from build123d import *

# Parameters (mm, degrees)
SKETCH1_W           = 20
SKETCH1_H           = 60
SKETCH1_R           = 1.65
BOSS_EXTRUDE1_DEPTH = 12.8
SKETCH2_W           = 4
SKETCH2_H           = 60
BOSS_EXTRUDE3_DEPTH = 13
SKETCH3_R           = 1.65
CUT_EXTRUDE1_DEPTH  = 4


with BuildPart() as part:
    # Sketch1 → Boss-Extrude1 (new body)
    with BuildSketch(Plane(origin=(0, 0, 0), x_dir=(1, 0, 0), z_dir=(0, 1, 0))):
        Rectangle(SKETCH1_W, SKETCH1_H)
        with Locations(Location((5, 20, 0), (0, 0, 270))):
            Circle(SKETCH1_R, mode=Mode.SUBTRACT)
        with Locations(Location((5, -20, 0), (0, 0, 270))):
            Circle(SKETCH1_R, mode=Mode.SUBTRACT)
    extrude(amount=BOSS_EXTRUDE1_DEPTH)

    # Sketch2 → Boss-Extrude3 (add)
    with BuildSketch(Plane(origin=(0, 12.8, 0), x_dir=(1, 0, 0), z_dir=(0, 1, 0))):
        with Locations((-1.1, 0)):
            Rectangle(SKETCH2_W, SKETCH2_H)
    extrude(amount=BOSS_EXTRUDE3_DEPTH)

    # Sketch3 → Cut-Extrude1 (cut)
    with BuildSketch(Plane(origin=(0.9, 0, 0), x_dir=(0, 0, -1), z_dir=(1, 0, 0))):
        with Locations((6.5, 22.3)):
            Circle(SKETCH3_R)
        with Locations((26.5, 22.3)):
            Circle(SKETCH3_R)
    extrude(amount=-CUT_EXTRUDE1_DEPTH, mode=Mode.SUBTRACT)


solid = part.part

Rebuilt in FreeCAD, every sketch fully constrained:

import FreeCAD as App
import Part
import Sketcher
Q = App.Units.Quantity

doc = App.newDocument("Part")
params = doc.addObject("Spreadsheet::Sheet", "Params")
for row, (alias, value) in enumerate([
    ("sketch1_diameter", "3.3 mm"),
    ("sketch1_width", "20 mm"),
    ("sketch1_height", "60 mm"),
    ("pad1_length", "12.8 mm"),
    ("sketch2_width", "4 mm"),
    ("sketch2_height", "60 mm"),
    ("pad2_length", "13 mm"),
    ("sketch3_diameter", "3.3 mm"),
    ("pocket1_length", "4 mm"),
], start=1):
    params.set(f"A{row}", alias)
    params.set(f"B{row}", "=" + value)
    params.setAlias(f"B{row}", alias)

body = doc.addObject("PartDesign::Body", "Body")

sketch1 = doc.addObject("Sketcher::SketchObject", "Sketch")
body.addObject(sketch1)
sketch1.AttachmentSupport = (doc.XZ_Plane, [""])
sketch1.MapMode = "FlatFace"
sketch1.addGeometry([
    Part.LineSegment(App.Vector(-10, -30, 0), App.Vector(-10, 30, 0)),
    Part.LineSegment(App.Vector(-10, 30, 0), App.Vector(10, 30, 0)),
    Part.LineSegment(App.Vector(10, 30, 0), App.Vector(10, -30, 0)),
    Part.LineSegment(App.Vector(10, -30, 0), App.Vector(-10, -30, 0)),
    Part.Circle(App.Vector(5, 20, 0), App.Vector(0, 0, 1), 1.65),
    Part.Circle(App.Vector(5, -20, 0), App.Vector(0, 0, 1), 1.65),
], False)
sketch1.addConstraint([
    Sketcher.Constraint("Coincident", 0, 2, 1, 1),
    Sketcher.Constraint("Coincident", 1, 2, 2, 1),
    Sketcher.Constraint("Coincident", 2, 2, 3, 1),
    Sketcher.Constraint("Coincident", 3, 2, 0, 1),
    Sketcher.Constraint("Vertical", 0),
    Sketcher.Constraint("Horizontal", 1),
    Sketcher.Constraint("Vertical", 2),
    Sketcher.Constraint("Horizontal", 3),
    Sketcher.Constraint("Equal", 4, 5),
    Sketcher.Constraint("Symmetric", 0, 2, 2, 2, -1, 1),
    Sketcher.Constraint("Symmetric", 4, 3, 5, 3, -1),
    Sketcher.Constraint("Diameter", 4, Q("3.3 mm")),
    Sketcher.Constraint("DistanceX", 1, 1, 1, 2, Q("20 mm")),
    Sketcher.Constraint("DistanceY", 0, 1, 0, 2, Q("60 mm")),
    Sketcher.Constraint("DistanceX", -1, 1, 4, 3, Q("5 mm")),
    Sketcher.Constraint("DistanceY", -1, 1, 4, 3, Q("20 mm")),
])
sketch1.setExpression("Constraints[11]", "Params.sketch1_diameter")
sketch1.setExpression("Constraints[12]", "Params.sketch1_width")
sketch1.setExpression("Constraints[13]", "Params.sketch1_height")
pad1 = doc.addObject("PartDesign::Pad", "Pad")
body.addObject(pad1)
pad1.Profile = sketch1
pad1.setExpression("Length", "Params.pad1_length")
pad1.Reversed = True

sketch2 = doc.addObject("Sketcher::SketchObject", "Sketch001")
body.addObject(sketch2)
sketch2.AttachmentSupport = (doc.XZ_Plane, [""])
sketch2.MapMode = "FlatFace"
sketch2.AttachmentOffset = App.Placement(App.Vector(0, 0, -12.8), App.Rotation())
sketch2.addGeometry([
    Part.LineSegment(App.Vector(-3.1, -30, 0), App.Vector(-3.1, 30, 0)),
    Part.LineSegment(App.Vector(-3.1, 30, 0), App.Vector(0.9, 30, 0)),
    Part.LineSegment(App.Vector(0.9, 30, 0), App.Vector(0.9, -30, 0)),
    Part.LineSegment(App.Vector(0.9, -30, 0), App.Vector(-3.1, -30, 0)),
], False)
sketch2.addConstraint([
    Sketcher.Constraint("Coincident", 0, 2, 1, 1),
    Sketcher.Constraint("Coincident", 1, 2, 2, 1),
    Sketcher.Constraint("Coincident", 2, 2, 3, 1),
    Sketcher.Constraint("Coincident", 3, 2, 0, 1),
    Sketcher.Constraint("Vertical", 0),
    Sketcher.Constraint("Horizontal", 1),
    Sketcher.Constraint("Vertical", 2),
    Sketcher.Constraint("Horizontal", 3),
    Sketcher.Constraint("DistanceX", 1, 1, 1, 2, Q("4 mm")),
    Sketcher.Constraint("DistanceY", 0, 1, 0, 2, Q("60 mm")),
    Sketcher.Constraint("DistanceY", -1, 1, 0, 2, Q("30 mm")),
    Sketcher.Constraint("DistanceX", 0, 2, -1, 1, Q("3.1 mm")),
])
sketch2.setExpression("Constraints[8]", "Params.sketch2_width")
sketch2.setExpression("Constraints[9]", "Params.sketch2_height")
pad2 = doc.addObject("PartDesign::Pad", "Pad001")
body.addObject(pad2)
pad2.Profile = sketch2
pad2.setExpression("Length", "Params.pad2_length")
pad2.Reversed = True

sketch3 = doc.addObject("Sketcher::SketchObject", "Sketch002")
body.addObject(sketch3)
sketch3.AttachmentSupport = (doc.YZ_Plane, [""])
sketch3.MapMode = "FlatFace"
sketch3.AttachmentOffset = App.Placement(App.Vector(0, 0, 0.9), App.Rotation())
sketch3.addGeometry([
    Part.Circle(App.Vector(22.3, -6.5, 0), App.Vector(0, 0, 1), 1.65),
    Part.Circle(App.Vector(22.3, -26.5, 0), App.Vector(0, 0, 1), 1.65),
], False)
sketch3.addConstraint([
    Sketcher.Constraint("Equal", 0, 1),
    Sketcher.Constraint("Vertical", 0, 3, 1, 3),
    Sketcher.Constraint("Diameter", 0, Q("3.3 mm")),
    Sketcher.Constraint("DistanceY", 1, 3, 0, 3, Q("20 mm")),
    Sketcher.Constraint("DistanceX", -1, 1, 0, 3, Q("22.3 mm")),
    Sketcher.Constraint("DistanceY", 0, 3, -1, 1, Q("6.5 mm")),
])
sketch3.setExpression("Constraints[2]", "Params.sketch3_diameter")
pocket1 = doc.addObject("PartDesign::Pocket", "Pocket")
body.addObject(pocket1)
pocket1.Profile = sketch3
pocket1.setExpression("Length", "Params.pocket1_length")

doc.recompute()
